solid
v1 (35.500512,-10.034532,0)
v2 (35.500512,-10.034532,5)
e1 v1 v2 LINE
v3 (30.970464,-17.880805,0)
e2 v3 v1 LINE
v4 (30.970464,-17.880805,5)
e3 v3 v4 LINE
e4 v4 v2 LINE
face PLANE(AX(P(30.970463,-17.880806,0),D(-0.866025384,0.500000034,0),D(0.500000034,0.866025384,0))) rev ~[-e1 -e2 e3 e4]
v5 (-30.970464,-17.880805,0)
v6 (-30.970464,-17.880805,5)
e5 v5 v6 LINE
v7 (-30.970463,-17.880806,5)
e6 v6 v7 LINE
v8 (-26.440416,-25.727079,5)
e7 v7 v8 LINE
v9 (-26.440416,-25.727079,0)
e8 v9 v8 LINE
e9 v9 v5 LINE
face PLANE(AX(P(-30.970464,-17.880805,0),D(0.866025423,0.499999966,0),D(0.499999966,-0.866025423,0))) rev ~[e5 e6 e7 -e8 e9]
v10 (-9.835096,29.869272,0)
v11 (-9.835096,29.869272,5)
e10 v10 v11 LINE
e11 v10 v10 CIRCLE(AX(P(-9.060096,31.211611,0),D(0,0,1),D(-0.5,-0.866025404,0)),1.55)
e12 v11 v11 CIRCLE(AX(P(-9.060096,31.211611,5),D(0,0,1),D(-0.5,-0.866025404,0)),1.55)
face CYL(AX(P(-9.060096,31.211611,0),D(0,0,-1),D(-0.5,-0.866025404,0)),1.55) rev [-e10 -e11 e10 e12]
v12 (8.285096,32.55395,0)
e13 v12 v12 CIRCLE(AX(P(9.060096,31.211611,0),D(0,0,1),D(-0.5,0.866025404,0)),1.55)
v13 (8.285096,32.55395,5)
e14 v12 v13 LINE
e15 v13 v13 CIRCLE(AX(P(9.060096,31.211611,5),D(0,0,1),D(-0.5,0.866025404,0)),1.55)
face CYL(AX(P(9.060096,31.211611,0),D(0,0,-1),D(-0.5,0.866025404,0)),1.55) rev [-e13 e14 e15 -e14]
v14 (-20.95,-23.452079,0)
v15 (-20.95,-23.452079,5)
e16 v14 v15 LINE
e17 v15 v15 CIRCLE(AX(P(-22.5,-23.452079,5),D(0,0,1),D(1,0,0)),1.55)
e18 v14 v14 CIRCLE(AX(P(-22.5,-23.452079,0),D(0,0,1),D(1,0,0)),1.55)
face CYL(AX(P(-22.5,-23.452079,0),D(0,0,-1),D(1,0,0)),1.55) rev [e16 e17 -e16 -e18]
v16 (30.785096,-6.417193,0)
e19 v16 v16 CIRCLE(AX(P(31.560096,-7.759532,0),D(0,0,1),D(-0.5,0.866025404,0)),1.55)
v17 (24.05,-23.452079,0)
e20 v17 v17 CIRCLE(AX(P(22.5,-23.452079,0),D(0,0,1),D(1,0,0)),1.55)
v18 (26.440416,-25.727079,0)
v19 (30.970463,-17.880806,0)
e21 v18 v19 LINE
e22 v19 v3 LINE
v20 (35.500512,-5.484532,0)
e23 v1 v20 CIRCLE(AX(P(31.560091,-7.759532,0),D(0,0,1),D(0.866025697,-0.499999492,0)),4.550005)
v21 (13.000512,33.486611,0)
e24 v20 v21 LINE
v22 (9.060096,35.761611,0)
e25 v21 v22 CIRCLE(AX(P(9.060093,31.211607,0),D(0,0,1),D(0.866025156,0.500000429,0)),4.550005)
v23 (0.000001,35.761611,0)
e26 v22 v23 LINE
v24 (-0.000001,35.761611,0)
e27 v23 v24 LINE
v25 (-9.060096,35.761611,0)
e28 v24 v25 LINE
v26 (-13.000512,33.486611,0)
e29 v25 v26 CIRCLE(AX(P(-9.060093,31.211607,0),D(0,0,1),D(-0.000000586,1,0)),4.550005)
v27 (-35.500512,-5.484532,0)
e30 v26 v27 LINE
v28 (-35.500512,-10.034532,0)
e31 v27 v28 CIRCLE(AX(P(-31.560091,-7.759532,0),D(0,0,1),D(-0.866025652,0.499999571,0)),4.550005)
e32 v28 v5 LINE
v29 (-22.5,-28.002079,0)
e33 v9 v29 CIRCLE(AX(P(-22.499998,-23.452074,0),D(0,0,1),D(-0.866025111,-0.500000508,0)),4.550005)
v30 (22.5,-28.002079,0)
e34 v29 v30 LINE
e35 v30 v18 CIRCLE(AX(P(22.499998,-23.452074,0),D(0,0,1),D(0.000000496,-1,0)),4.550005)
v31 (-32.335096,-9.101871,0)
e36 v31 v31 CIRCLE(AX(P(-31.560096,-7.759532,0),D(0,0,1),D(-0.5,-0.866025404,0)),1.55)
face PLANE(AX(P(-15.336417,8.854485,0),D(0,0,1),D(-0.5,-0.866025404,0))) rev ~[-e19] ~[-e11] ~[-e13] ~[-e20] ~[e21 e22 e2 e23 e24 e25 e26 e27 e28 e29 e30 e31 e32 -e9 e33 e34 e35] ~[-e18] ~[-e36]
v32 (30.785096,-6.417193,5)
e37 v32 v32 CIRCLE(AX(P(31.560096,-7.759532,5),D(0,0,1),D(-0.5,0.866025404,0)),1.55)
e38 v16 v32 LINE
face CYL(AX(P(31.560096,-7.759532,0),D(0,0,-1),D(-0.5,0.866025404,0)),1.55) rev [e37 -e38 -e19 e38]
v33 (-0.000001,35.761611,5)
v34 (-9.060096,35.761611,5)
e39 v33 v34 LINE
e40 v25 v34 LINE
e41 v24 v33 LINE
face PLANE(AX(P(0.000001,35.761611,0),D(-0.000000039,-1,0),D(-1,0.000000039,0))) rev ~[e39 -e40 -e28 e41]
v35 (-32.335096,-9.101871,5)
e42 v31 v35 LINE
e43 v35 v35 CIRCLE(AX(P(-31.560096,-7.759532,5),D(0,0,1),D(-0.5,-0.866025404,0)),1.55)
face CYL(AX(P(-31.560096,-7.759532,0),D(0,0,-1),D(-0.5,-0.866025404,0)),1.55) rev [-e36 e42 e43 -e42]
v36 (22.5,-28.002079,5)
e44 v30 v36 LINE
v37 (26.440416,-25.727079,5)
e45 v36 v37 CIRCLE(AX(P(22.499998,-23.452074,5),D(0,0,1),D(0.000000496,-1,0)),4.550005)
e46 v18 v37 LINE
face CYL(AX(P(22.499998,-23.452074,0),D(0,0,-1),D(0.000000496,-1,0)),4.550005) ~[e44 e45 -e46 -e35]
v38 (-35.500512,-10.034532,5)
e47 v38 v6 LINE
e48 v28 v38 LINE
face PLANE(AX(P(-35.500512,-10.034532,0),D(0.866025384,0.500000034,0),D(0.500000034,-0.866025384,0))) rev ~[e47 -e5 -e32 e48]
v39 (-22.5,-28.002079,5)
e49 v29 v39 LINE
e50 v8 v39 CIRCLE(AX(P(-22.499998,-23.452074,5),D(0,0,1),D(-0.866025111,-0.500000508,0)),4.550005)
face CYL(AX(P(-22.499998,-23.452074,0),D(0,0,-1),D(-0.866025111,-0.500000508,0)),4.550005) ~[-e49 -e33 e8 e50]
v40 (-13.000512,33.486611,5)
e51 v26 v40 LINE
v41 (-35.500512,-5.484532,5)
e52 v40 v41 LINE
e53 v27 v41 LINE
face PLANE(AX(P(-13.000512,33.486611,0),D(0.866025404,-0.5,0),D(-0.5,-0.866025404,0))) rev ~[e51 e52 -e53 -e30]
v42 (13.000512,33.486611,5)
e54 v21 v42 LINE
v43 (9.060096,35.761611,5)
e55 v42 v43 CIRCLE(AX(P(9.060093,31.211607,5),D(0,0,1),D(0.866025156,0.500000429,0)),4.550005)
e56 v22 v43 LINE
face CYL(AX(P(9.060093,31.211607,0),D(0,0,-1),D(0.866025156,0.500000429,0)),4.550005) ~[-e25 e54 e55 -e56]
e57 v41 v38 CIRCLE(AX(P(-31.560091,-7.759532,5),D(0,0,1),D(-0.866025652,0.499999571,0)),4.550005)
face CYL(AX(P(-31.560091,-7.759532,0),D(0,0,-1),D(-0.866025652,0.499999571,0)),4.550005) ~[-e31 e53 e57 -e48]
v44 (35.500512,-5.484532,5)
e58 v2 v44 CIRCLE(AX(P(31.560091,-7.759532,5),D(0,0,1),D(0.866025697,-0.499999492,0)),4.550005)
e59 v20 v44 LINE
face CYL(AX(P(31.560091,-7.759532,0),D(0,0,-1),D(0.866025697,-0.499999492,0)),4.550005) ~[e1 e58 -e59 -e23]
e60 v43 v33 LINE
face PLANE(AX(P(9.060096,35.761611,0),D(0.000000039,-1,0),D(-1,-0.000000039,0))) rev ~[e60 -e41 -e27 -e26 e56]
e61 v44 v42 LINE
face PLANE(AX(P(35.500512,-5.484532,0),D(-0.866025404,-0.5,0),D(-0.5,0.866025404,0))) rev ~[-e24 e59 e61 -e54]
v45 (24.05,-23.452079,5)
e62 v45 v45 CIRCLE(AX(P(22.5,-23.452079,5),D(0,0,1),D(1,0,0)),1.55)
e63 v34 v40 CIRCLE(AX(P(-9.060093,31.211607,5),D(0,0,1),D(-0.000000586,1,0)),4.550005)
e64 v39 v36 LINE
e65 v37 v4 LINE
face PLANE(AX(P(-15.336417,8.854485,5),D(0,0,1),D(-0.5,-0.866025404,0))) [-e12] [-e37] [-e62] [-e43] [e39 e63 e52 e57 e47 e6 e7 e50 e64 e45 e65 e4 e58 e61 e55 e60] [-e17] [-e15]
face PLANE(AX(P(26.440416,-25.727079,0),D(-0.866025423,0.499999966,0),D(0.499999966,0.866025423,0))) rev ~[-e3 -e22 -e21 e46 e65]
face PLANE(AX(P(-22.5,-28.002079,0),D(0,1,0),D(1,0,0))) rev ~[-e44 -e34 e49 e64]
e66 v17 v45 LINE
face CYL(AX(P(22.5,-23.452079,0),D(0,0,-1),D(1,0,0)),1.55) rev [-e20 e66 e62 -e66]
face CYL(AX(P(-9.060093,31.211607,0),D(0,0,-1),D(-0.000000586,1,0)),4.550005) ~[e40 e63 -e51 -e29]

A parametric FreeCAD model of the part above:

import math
import FreeCAD as App
import Part
import Sketcher

V = App.Vector
Q = App.Units.Quantity

doc = App.newDocument("Part")
body = doc.addObject("PartDesign::Body", "Body")

sketch1 = body.newObject("Sketcher::SketchObject", "Sketch")
sketch1.AttachmentSupport = (doc.getObject("XY_Plane"), [""])
sketch1.MapMode = "FlatFace"
sketch1.addGeometry([
    Part.ArcOfCircle(Part.Circle(V(-22.5, -23.5, 0), V(0, 0, 1), 4.6), math.radians(-150), math.radians(-90)),
    Part.LineSegment(V(-22.5, -28, 0), V(22.5, -28, 0)),
    Part.ArcOfCircle(Part.Circle(V(22.5, -23.5, 0), V(0, 0, 1), 4.6), math.radians(-90), math.radians(-30)),
    Part.LineSegment(V(26.4, -25.7, 0), V(31, -17.9, 0)),
    Part.LineSegment(V(31, -17.9, 0), V(0, 0, 0)),
    Part.LineSegment(V(0, 0, 0), V(-31, -17.9, 0)),
    Part.LineSegment(V(-31, -17.9, 0), V(-26.4, -25.7, 0)),
    Part.Circle(V(-22.5, -23.5, 0), V(0, 0, 1), 1.6),
    Part.Circle(V(22.5, -23.5, 0), V(0, 0, 1), 1.6),
], False)
sketch1.addConstraint([
    Sketcher.Constraint("Tangent", 0, 2, 1, 1),
    Sketcher.Constraint("Tangent", 1, 2, 2, 1),
    Sketcher.Constraint("Tangent", 2, 2, 3, 1),
    Sketcher.Constraint("Coincident", 3, 2, 4, 1),
    Sketcher.Constraint("Coincident", 4, 2, 5, 1),
    Sketcher.Constraint("Coincident", 5, 2, 6, 1),
    Sketcher.Constraint("Tangent", 6, 2, 0, 1),
    Sketcher.Constraint("Horizontal", 1),
    Sketcher.Constraint("Coincident", 4, 2, -1, 1),
    Sketcher.Constraint("Coincident", 7, 3, 0, 3),
    Sketcher.Constraint("Coincident", 8, 3, 2, 3),
    Sketcher.Constraint("Equal", 0, 2),
    Sketcher.Constraint("Equal", 7, 8),
    Sketcher.Constraint("Symmetric", 3, 2, 5, 2, -2),
    Sketcher.Constraint("Perpendicular", 3, 4),
    Sketcher.Constraint("Perpendicular", 5, 6),
    Sketcher.Constraint("Diameter", 7, Q("3.1 mm")),
    Sketcher.Constraint("DistanceX", 1, 1, 1, 2, Q("45 mm")),
    Sketcher.Constraint("Angle", 3, Q("60.000002 deg")),
    Sketcher.Constraint("DistanceY", 0, 2, 7, 3, Q("4.55 mm")),
    Sketcher.Constraint("Distance", 4, Q("35.761611 mm")),
])
pad1 = body.newObject("PartDesign::Pad", "Pad")
pad1.Profile = sketch1
pad1.Length = 5
body2 = doc.addObject("PartDesign::Body", "Body001")
doc.recompute()

body2.BaseFeature = body
doc.recompute()

body3 = doc.addObject("PartDesign::Body", "Body002")
body3.BaseFeature = body
body3.Placement = App.Placement(V(0, 0, 0), App.Rotation(V(0, 0, 1), 120))
boolean = body2.newObject("PartDesign::Boolean", "Boolean")
boolean.Type = "Fuse"
boolean.addObjects([body3])
doc.recompute()

body.Placement = App.Placement(V(0, 0, 0), App.Rotation(V(0, 0, 1), 240))
boolean2 = body2.newObject("PartDesign::Boolean", "Boolean001")
boolean2.Type = "Fuse"
boolean2.addObjects([body])

doc.recompute()
